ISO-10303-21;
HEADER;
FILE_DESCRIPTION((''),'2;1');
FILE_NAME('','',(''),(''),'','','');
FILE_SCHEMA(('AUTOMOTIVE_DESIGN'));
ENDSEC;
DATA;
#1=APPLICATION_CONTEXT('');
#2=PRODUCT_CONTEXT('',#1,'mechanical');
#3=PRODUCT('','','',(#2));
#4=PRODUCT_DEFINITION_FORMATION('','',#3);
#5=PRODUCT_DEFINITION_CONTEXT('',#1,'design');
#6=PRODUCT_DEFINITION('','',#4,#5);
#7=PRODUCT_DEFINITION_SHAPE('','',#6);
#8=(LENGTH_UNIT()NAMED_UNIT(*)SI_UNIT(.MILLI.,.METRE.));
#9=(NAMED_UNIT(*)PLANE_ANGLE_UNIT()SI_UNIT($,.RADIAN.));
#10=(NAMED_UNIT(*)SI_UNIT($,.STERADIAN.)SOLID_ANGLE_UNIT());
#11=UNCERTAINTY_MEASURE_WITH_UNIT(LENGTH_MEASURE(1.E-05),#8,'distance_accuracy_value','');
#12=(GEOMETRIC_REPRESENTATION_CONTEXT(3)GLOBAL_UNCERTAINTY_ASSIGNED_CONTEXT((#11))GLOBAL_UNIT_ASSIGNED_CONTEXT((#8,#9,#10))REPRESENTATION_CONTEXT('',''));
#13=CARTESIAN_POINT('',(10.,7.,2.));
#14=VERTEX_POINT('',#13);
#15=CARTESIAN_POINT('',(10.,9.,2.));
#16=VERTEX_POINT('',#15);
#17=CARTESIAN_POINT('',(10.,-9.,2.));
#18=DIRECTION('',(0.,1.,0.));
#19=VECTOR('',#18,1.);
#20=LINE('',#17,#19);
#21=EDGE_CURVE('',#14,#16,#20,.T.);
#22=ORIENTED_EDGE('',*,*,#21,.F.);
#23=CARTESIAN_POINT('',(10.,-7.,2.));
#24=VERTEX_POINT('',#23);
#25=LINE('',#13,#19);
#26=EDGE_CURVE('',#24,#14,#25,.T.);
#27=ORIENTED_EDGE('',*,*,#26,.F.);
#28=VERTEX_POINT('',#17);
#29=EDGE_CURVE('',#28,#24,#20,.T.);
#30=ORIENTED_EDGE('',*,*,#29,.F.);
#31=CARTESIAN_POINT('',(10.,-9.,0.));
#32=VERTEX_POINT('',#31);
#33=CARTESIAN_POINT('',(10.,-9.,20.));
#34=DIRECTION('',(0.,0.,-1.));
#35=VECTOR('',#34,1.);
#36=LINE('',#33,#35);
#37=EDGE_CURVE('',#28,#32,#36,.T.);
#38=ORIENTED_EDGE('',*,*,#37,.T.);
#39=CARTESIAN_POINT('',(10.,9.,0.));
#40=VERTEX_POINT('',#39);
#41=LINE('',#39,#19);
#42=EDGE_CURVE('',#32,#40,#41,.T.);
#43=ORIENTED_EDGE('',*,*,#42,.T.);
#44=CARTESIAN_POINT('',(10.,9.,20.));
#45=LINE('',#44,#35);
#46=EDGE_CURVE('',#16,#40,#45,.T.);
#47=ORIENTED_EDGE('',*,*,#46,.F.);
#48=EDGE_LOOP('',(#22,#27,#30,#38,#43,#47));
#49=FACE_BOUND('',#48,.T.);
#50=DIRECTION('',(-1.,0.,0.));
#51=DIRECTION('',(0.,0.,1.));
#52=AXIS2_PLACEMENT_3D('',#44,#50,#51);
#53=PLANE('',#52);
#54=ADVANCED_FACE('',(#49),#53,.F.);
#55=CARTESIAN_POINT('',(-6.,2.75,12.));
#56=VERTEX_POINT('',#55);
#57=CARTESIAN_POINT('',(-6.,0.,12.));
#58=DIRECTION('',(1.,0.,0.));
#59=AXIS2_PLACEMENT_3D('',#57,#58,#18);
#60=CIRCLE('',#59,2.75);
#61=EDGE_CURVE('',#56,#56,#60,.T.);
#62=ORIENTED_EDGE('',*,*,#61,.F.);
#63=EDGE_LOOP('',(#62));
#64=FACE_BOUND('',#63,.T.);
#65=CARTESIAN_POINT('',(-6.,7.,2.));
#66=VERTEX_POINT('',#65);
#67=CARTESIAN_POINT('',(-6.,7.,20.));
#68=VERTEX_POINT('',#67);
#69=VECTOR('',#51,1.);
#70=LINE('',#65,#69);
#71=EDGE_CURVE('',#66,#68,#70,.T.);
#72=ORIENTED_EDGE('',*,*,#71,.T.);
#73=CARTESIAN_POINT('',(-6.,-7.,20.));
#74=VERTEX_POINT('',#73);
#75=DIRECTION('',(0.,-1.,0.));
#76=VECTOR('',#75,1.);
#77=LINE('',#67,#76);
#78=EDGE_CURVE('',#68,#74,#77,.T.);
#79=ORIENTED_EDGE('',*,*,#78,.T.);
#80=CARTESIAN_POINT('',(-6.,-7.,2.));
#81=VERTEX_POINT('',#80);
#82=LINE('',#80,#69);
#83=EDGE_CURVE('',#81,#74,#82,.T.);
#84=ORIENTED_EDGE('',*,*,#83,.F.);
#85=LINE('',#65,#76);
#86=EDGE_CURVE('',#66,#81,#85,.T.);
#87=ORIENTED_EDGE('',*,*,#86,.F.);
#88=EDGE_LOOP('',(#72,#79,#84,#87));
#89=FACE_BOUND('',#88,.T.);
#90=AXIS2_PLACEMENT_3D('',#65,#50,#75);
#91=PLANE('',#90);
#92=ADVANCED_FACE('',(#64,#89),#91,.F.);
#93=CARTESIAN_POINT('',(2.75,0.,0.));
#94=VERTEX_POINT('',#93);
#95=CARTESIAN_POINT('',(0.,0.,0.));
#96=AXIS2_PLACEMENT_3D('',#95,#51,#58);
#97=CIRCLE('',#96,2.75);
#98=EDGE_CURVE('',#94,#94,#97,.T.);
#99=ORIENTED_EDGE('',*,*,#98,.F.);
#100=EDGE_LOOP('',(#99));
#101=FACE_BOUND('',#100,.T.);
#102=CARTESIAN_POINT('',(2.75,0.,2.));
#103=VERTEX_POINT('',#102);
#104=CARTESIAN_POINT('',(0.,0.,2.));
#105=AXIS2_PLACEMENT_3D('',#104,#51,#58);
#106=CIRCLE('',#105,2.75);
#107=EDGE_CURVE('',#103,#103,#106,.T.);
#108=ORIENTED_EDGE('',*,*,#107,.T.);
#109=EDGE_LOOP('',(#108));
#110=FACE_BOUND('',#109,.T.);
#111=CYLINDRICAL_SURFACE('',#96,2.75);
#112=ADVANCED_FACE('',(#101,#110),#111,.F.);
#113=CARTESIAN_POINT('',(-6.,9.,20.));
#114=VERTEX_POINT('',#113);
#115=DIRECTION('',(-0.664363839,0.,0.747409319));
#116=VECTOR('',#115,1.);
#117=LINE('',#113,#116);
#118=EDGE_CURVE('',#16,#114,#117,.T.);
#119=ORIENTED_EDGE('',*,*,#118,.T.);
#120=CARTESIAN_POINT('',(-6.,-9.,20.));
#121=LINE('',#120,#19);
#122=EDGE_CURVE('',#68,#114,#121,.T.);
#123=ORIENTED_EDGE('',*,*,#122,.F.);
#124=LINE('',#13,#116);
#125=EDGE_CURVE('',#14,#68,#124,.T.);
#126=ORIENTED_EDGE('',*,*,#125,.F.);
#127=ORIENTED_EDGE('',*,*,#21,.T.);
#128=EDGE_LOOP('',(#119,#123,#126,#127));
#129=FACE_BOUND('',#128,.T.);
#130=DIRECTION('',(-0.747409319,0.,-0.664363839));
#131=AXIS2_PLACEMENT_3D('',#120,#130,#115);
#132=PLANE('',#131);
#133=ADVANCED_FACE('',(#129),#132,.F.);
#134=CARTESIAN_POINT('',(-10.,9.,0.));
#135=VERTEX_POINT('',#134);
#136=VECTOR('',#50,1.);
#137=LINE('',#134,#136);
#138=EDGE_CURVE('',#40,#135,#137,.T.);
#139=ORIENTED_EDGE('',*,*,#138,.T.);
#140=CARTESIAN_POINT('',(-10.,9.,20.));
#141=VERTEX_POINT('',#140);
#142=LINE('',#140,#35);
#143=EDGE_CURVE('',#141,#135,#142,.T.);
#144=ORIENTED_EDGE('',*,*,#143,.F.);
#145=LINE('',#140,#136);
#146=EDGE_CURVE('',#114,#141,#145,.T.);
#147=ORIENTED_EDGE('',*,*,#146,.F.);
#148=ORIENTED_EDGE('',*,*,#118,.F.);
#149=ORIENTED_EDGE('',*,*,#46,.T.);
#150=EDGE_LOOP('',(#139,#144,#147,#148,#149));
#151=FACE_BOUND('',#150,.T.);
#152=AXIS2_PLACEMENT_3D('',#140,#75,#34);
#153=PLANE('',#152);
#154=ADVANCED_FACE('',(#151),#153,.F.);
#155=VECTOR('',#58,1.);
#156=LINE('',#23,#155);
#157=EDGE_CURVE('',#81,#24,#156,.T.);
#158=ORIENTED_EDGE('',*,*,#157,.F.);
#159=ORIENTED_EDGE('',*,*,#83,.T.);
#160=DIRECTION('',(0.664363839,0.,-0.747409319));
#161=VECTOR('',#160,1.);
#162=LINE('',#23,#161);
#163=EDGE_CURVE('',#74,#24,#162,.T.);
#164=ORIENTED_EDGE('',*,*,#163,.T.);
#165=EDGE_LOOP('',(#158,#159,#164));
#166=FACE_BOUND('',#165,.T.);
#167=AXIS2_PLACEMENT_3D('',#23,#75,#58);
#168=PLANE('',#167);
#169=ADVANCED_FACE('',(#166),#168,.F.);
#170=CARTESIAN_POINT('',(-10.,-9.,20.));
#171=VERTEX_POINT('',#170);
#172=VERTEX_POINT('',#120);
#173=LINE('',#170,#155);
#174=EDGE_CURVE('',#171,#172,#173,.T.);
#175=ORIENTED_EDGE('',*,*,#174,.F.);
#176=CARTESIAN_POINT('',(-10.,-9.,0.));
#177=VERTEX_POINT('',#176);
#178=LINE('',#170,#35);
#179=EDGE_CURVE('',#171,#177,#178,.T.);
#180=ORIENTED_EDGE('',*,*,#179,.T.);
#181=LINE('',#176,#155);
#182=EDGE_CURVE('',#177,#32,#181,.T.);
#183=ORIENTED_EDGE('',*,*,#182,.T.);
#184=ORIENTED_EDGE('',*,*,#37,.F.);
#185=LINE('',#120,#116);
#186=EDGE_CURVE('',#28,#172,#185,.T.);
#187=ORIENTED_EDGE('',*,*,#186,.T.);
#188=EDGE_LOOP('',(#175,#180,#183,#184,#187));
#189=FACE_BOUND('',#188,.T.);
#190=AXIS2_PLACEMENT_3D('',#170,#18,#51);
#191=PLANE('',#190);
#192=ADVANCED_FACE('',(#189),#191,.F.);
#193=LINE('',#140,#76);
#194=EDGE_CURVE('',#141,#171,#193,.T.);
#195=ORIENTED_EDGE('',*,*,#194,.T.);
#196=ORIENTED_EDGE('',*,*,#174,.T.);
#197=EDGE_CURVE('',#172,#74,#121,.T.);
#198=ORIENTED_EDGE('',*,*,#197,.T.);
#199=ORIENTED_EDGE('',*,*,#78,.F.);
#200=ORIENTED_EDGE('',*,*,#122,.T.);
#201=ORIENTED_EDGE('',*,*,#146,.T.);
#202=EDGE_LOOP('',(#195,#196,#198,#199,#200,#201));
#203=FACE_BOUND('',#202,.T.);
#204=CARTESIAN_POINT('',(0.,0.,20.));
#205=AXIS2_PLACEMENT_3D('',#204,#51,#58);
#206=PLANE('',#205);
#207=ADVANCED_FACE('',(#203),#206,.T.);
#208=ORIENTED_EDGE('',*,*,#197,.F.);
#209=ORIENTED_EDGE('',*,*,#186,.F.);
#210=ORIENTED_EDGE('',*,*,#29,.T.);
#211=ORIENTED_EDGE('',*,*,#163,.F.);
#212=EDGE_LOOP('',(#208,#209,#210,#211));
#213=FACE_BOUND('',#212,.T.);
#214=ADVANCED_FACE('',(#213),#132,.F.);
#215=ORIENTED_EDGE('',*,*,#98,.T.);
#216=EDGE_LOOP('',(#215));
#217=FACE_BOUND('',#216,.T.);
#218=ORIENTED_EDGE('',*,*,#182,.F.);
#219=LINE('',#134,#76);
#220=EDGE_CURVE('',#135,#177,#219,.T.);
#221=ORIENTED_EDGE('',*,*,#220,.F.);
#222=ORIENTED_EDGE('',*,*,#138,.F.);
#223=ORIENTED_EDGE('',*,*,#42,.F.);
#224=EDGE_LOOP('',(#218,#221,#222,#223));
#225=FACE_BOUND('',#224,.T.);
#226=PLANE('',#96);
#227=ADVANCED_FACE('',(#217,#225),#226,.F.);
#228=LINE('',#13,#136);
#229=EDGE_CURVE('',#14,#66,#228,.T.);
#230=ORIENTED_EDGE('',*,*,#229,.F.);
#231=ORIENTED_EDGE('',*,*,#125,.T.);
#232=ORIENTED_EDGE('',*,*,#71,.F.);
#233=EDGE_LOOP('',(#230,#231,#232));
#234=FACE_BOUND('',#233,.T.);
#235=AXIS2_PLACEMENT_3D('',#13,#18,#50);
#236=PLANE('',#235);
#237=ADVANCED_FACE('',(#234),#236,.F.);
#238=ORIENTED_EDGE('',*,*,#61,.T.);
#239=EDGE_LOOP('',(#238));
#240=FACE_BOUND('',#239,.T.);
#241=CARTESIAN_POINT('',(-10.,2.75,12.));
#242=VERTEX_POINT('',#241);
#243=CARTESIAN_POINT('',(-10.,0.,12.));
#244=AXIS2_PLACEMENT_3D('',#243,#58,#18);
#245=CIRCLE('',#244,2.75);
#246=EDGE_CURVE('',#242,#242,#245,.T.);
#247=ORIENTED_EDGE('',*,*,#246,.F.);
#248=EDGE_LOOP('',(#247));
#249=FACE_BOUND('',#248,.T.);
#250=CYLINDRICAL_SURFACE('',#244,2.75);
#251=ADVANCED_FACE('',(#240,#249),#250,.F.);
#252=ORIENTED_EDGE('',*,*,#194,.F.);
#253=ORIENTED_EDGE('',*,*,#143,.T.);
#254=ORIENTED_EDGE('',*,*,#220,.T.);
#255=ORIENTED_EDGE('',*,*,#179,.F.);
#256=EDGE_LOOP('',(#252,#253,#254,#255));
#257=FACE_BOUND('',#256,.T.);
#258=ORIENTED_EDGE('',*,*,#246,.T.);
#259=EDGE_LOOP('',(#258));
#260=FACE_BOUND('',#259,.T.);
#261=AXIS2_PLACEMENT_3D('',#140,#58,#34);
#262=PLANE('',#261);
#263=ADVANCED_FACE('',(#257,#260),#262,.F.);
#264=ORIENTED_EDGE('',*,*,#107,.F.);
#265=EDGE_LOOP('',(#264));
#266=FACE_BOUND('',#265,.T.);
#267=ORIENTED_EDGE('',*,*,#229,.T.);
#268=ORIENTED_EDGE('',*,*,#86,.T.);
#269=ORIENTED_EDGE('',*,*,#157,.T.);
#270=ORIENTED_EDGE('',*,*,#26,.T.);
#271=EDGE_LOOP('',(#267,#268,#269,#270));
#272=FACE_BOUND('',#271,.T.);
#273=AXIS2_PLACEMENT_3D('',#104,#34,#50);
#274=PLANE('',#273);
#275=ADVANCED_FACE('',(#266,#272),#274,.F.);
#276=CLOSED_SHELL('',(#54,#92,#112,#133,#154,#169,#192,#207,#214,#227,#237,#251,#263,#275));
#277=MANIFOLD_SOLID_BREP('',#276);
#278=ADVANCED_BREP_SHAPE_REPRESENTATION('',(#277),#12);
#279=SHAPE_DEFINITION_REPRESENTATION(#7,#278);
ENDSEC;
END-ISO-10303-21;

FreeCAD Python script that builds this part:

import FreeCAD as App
import Part
import Sketcher

V = App.Vector

doc = App.newDocument("Part")
params = doc.addObject("Spreadsheet::Sheet", "Params")
for row, (alias, value) in enumerate([
    ("sketch1_width", "20 mm"),
    ("sketch1_height", "18 mm"),
    ("pad1_length", "20 mm"),
    ("sketch2_width", "16 mm"),
    ("sketch2_height", "14 mm"),
    ("pocket1_length", "18 mm"),
    ("sketch3_width", "16 mm"),
    ("sketch3_height", "18 mm"),
    ("sketch4_diameter", "5.5 mm"),
    ("sketch5_diameter", "5.5 mm"),
], start=1):
    params.set(f"A{row}", alias)
    params.set(f"B{row}", "=" + value)
    params.setAlias(f"B{row}", alias)

body = doc.addObject("PartDesign::Body", "Body")

# Sketch on XY plane
sketch1 = body.newObject("Sketcher::SketchObject", "Sketch")
sketch1.AttachmentSupport = (doc.getObject("XY_Plane"), [""])
sketch1.MapMode = "FlatFace"
sketch1.addGeometry([
    Part.LineSegment(V(-10, 9, 0), V(-10, -9, 0)),
    Part.LineSegment(V(-10, -9, 0), V(10, -9, 0)),
    Part.LineSegment(V(10, -9, 0), V(10, 9, 0)),
    Part.LineSegment(V(10, 9, 0), V(-10, 9, 0)),
], False)
sketch1.addConstraint([
    Sketcher.Constraint("Coincident", 0, 2, 1, 1),
    Sketcher.Constraint("Coincident", 1, 2, 2, 1),
    Sketcher.Constraint("Coincident", 2, 2, 3, 1),
    Sketcher.Constraint("Coincident", 3, 2, 0, 1),
    Sketcher.Constraint("Vertical", 0),
    Sketcher.Constraint("Horizontal", 1),
    Sketcher.Constraint("Vertical", 2),
    Sketcher.Constraint("Horizontal", 3),
    Sketcher.Constraint("Symmetric", 0, 2, 2, 2, -1, 1),
    Sketcher.Constraint("DistanceX", 1, 1, 1, 2, 20.0),
    Sketcher.Constraint("DistanceY", 0, 2, 0, 1, 18.0),
])
sketch1.setExpression("Constraints[9]", "Params.sketch1_width")
sketch1.setExpression("Constraints[10]", "Params.sketch1_height")
pad1 = body.newObject("PartDesign::Pad", "Pad")
pad1.Profile = sketch1
pad1.setExpression("Length", "Params.pad1_length")

# Sketch on XY plane
sketch2 = body.newObject("Sketcher::SketchObject", "Sketch001")
sketch2.AttachmentSupport = (doc.getObject("XY_Plane"), [""])
sketch2.MapMode = "FlatFace"
sketch2.AttachmentOffset = App.Placement(V(0, 0, 20), App.Rotation())
sketch2.addGeometry([
    Part.LineSegment(V(-6, 7, 0), V(-6, -7, 0)),
    Part.LineSegment(V(-6, -7, 0), V(10, -7, 0)),
    Part.LineSegment(V(10, -7, 0), V(10, 7, 0)),
    Part.LineSegment(V(10, 7, 0), V(-6, 7, 0)),
], False)
sketch2.addConstraint([
    Sketcher.Constraint("Coincident", 0, 2, 1, 1),
    Sketcher.Constraint("Coincident", 1, 2, 2, 1),
    Sketcher.Constraint("Coincident", 2, 2, 3, 1),
    Sketcher.Constraint("Coincident", 3, 2, 0, 1),
    Sketcher.Constraint("Vertical", 0),
    Sketcher.Constraint("Horizontal", 1),
    Sketcher.Constraint("Vertical", 2),
    Sketcher.Constraint("Horizontal", 3),
    Sketcher.Constraint("DistanceX", 1, 1, 1, 2, 16.0),
    Sketcher.Constraint("DistanceY", 0, 2, 0, 1, 14.0),
    Sketcher.Constraint("DistanceX", 0, 2, -1, 1, 6.0),
    Sketcher.Constraint("DistanceY", 0, 2, -1, 1, 7.0),
])
sketch2.setExpression("Constraints[8]", "Params.sketch2_width")
sketch2.setExpression("Constraints[9]", "Params.sketch2_height")
pocket1 = body.newObject("PartDesign::Pocket", "Pocket")
pocket1.Profile = sketch2
pocket1.setExpression("Length", "Params.pocket1_length")

# Sketch on XZ plane
sketch3 = body.newObject("Sketcher::SketchObject", "Sketch002")
sketch3.AttachmentSupport = (doc.getObject("XZ_Plane"), [""])
sketch3.MapMode = "FlatFace"
sketch3.AttachmentOffset = App.Placement(V(0, 0, 7), App.Rotation())
sketch3.addGeometry([
    Part.LineSegment(V(10, 2, 0), V(-6, 20, 0)),
    Part.LineSegment(V(-6, 20, 0), V(10, 20, 0)),
    Part.LineSegment(V(10, 20, 0), V(10, 2, 0)),
], False)
sketch3.addConstraint([
    Sketcher.Constraint("Coincident", 0, 2, 1, 1),
    Sketcher.Constraint("Coincident", 1, 2, 2, 1),
    Sketcher.Constraint("Coincident", 2, 2, 0, 1),
    Sketcher.Constraint("Horizontal", 1),
    Sketcher.Constraint("Vertical", 2),
    Sketcher.Constraint("DistanceX", 1, 1, 1, 2, 16.0),
    Sketcher.Constraint("DistanceY", 2, 2, 2, 1, 18.0),
    Sketcher.Constraint("DistanceX", 0, 2, -1, 1, 6.0),
    Sketcher.Constraint("DistanceY", -1, 1, 0, 2, 20.0),
])
sketch3.setExpression("Constraints[5]", "Params.sketch3_width")
sketch3.setExpression("Constraints[6]", "Params.sketch3_height")
pocket2 = body.newObject("PartDesign::Pocket", "Pocket001")
pocket2.Profile = sketch3
pocket2.Type = "ThroughAll"
pocket2.Midplane = True

# Sketch on XY plane
sketch4 = body.newObject("Sketcher::SketchObject", "Sketch003")
sketch4.AttachmentSupport = (doc.getObject("XY_Plane"), [""])
sketch4.MapMode = "FlatFace"
sketch4.AttachmentOffset = App.Placement(V(0, 0, 2), App.Rotation())
sketch4.addGeometry(Part.Circle(V(0, 0, 0), V(0, 0, 1), 2.8), False)
sketch4.addConstraint([
    Sketcher.Constraint("Coincident", 0, 3, -1, 1),
    Sketcher.Constraint("Diameter", 0, 5.5),
])
sketch4.setExpression("Constraints[1]", "Params.sketch4_diameter")
pocket3 = body.newObject("PartDesign::Pocket", "Pocket002")
pocket3.Profile = sketch4
pocket3.Type = "ThroughAll"
pocket3.Midplane = True

# Sketch on YZ plane
sketch5 = body.newObject("Sketcher::SketchObject", "Sketch004")
sketch5.AttachmentSupport = (doc.getObject("YZ_Plane"), [""])
sketch5.MapMode = "FlatFace"
sketch5.AttachmentOffset = App.Placement(V(0, 0, -6), App.Rotation())
sketch5.addGeometry(Part.Circle(V(0, 12, 0), V(0, 0, 1), 2.8), False)
sketch5.addConstraint([
    Sketcher.Constraint("PointOnObject", 0, 3, -2),
    Sketcher.Constraint("Diameter", 0, 5.5),
    Sketcher.Constraint("DistanceY", -1, 1, 0, 3, 12.0),
])
sketch5.setExpression("Constraints[1]", "Params.sketch5_diameter")
pocket4 = body.newObject("PartDesign::Pocket", "Pocket003")
pocket4.Profile = sketch5
pocket4.Type = "ThroughAll"
pocket4.Midplane = True

doc.recompute()
